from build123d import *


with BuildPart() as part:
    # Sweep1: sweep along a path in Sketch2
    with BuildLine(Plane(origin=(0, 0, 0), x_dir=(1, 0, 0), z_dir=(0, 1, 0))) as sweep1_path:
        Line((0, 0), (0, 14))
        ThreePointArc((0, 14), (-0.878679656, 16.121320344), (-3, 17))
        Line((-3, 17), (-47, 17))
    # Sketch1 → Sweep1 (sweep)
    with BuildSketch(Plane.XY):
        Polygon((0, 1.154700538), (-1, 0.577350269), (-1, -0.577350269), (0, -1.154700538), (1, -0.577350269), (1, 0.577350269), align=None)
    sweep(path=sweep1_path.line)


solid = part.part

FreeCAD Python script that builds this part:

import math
import FreeCAD as App
import Part
import Sketcher
Q = App.Units.Quantity


def add_polygon(sketch, points):
    """Adds a closed chain of lines whose ends are joined by coincident constraints."""
    first, n = sketch.GeometryCount, len(points)
    for a, b in zip(points, points[1:] + points[:1]):
        sketch.addGeometry(Part.LineSegment(App.Vector(*a, 0), App.Vector(*b, 0)), False)
    for i in range(n):
        sketch.addConstraint(Sketcher.Constraint("Coincident", first + i, 2, first + (i + 1) % n, 1))

doc = App.newDocument("Part")
body = doc.addObject("PartDesign::Body", "Body")

sketch1 = body.newObject("Sketcher::SketchObject", "Sketch")
sketch1.AttachmentSupport = (doc.getObject("XY_Plane"), [""])
sketch1.MapMode = "FlatFace"
add_polygon(sketch1, [(0, 1.154701), (-1, 0.57735), (-1, -0.57735), (0, -1.154701), (1, -0.57735), (1, 0.57735)])
sketch1.addConstraint([
    Sketcher.Constraint("Vertical", 1),
    Sketcher.Constraint("Vertical", 4),
    Sketcher.Constraint("Symmetric", 0, 2, 3, 2, -1, 1),
    Sketcher.Constraint("Symmetric", 2, 2, 5, 2, -1, 1),
    Sketcher.Constraint("PointOnObject", 2, 2, -2),
    Sketcher.Constraint("Parallel", 2, 5),
    Sketcher.Constraint("Horizontal", 1, 2, 3, 2),
    Sketcher.Constraint("Angle", 0, Q("-150 deg")),
    Sketcher.Constraint("DistanceX", 0, 2, -1, 1, Q("1 mm")),
    Sketcher.Constraint("DistanceY", 1, 2, 1, 1, Q("1.154701 mm")),
])

sketch2 = body.newObject("Sketcher::SketchObject", "Sketch001")
sketch2.AttachmentSupport = (doc.getObject("XZ_Plane"), [""])
sketch2.MapMode = "FlatFace"
sketch2.addGeometry([
    Part.LineSegment(App.Vector(0, 0, 0), App.Vector(0, -14, 0)),
    Part.ArcOfCircle(Part.Circle(App.Vector(-3, -14, 0), App.Vector(0, 0, 1), 3), math.radians(-90), math.radians(0)),
    Part.LineSegment(App.Vector(-3, -17, 0), App.Vector(-47, -17, 0)),
], False)
sketch2.addConstraint([
    Sketcher.Constraint("Tangent", 0, 2, 1, 2),
    Sketcher.Constraint("Tangent", 1, 1, 2, 1),
    Sketcher.Constraint("Vertical", 0),
    Sketcher.Constraint("Horizontal", 2),
    Sketcher.Constraint("Coincident", 0, 1, -1, 1),
    Sketcher.Constraint("Radius", 1, Q("3 mm")),
    Sketcher.Constraint("DistanceX", 2, 2, 2, 1, Q("44 mm")),
    Sketcher.Constraint("DistanceY", 0, 2, 0, 1, Q("14 mm")),
])
doc.recompute()

additivepipe = body.newObject("PartDesign::AdditivePipe", "AdditivePipe")
additivepipe.Profile = sketch1
additivepipe.Spine = (sketch2, ["Edge1", "Edge2", "Edge3"])

doc.recompute()
